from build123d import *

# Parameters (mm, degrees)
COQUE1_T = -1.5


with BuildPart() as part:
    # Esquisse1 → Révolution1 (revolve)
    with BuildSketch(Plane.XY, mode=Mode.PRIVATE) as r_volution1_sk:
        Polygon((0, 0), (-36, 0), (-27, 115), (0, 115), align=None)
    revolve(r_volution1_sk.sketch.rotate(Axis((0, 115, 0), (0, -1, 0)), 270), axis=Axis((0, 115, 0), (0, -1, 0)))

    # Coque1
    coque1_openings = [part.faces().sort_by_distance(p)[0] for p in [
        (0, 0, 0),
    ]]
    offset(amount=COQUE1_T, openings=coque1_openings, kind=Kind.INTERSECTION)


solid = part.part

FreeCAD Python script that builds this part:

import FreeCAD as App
import Part
import Sketcher
Q = App.Units.Quantity


def faces_at(feature, points):
    """Names of the faces that lie closest to the given points."""
    faces = feature.Shape.Faces
    near = lambda p: min(range(len(faces)), key=lambda i: faces[i].distToShape(Part.Vertex(*p))[0])
    return sorted({f"Face{near(p) + 1}" for p in points})

doc = App.newDocument("Part")
params = doc.addObject("Spreadsheet::Sheet", "Params")
for row, (alias, value) in enumerate([
    ("sketch1_width", "36 mm"),
    ("sketch1_width2", "27 mm"),
    ("sketch1_height", "115 mm"),
    ("revolution_angle", "360 deg"),
    ("thickness_wall", "1.5 mm"),
], start=1):
    params.set(f"A{row}", alias)
    params.set(f"B{row}", "=" + value)
    params.setAlias(f"B{row}", alias)

body = doc.addObject("PartDesign::Body", "Body")

# Sketch on XY plane
sketch1 = body.newObject("Sketcher::SketchObject", "Sketch")
sketch1.AttachmentSupport = (doc.getObject("XY_Plane"), [""])
sketch1.MapMode = "FlatFace"
sketch1.addGeometry(Part.LineSegment(App.Vector(-36, 0, 0), App.Vector(0, 0, 0)), False)
sketch1.addGeometry(Part.LineSegment(App.Vector(0, 0, 0), App.Vector(0, 115, 0)), False)
sketch1.addGeometry(Part.LineSegment(App.Vector(0, 115, 0), App.Vector(-27, 115, 0)), False)
sketch1.addGeometry(Part.LineSegment(App.Vector(-27, 115, 0), App.Vector(-36, 0, 0)), False)
sketch1.addConstraint(Sketcher.Constraint("Coincident", 0, 2, 1, 1))
sketch1.addConstraint(Sketcher.Constraint("Coincident", 1, 2, 2, 1))
sketch1.addConstraint(Sketcher.Constraint("Coincident", 2, 2, 3, 1))
sketch1.addConstraint(Sketcher.Constraint("Coincident", 3, 2, 0, 1))
sketch1.addConstraint(Sketcher.Constraint("Horizontal", 0))
sketch1.addConstraint(Sketcher.Constraint("Vertical", 1))
sketch1.addConstraint(Sketcher.Constraint("Horizontal", 2))
sketch1.addConstraint(Sketcher.Constraint("Coincident", 0, 2, -1, 1))
sketch1.addConstraint(Sketcher.Constraint("DistanceX", 0, 1, 0, 2, Q("36 mm")))
sketch1.addConstraint(Sketcher.Constraint("DistanceX", 2, 2, 2, 1, Q("27 mm")))
sketch1.addConstraint(Sketcher.Constraint("DistanceY", 1, 1, 1, 2, Q("115 mm")))
sketch1.setExpression("Constraints[8]", "Params.sketch1_width")
sketch1.setExpression("Constraints[9]", "Params.sketch1_width2")
sketch1.setExpression("Constraints[10]", "Params.sketch1_height")
revolution = body.newObject("PartDesign::Revolution", "Revolution")
revolution.Profile = sketch1
revolution.ReferenceAxis = (sketch1, ["V_Axis"])
revolution.setExpression("Angle", "Params.revolution_angle")
doc.recompute()

thickness = body.newObject("PartDesign::Thickness", "Thickness")
thickness.Base = (revolution, faces_at(revolution, [(0, 0, 0)]))
thickness.setExpression("Value", "Params.thickness_wall")
thickness.Reversed = True
thickness.Join = "Intersection"

doc.recompute()
